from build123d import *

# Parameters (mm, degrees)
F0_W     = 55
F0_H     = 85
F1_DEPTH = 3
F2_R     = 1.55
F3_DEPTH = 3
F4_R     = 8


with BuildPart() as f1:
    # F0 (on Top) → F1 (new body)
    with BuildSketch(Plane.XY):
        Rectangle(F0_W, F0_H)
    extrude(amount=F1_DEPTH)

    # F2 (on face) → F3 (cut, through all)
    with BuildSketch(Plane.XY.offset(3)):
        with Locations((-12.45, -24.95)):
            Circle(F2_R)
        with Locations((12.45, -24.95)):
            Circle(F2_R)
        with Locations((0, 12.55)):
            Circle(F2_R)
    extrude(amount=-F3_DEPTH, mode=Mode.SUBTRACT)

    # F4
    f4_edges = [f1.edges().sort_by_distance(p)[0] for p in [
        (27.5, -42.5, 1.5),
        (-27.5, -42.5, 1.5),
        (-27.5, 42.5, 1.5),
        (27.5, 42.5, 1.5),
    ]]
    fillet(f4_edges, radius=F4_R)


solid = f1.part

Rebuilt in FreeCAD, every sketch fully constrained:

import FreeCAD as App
import Part
import Sketcher
from FreeCAD import Vector
Q = App.Units.Quantity


def edges_at(feature, points):
    """Names of the edges that pass closest to the given points."""
    edges = feature.Shape.Edges
    near = lambda p: min(range(len(edges)), key=lambda i: edges[i].distToShape(Part.Vertex(*p))[0])
    return sorted({f"Edge{near(p) + 1}" for p in points})


def add_polygon(sketch, points):
    """Adds a closed chain of lines whose ends are joined by coincident constraints."""
    first, n = sketch.GeometryCount, len(points)
    for a, b in zip(points, points[1:] + points[:1]):
        sketch.addGeometry(Part.LineSegment(App.Vector(*a, 0), App.Vector(*b, 0)), False)
    for i in range(n):
        sketch.addConstraint(Sketcher.Constraint("Coincident", first + i, 2, first + (i + 1) % n, 1))

doc = App.newDocument("Part")
params = doc.addObject("Spreadsheet::Sheet", "Params")
for row, (alias, value) in enumerate([
    ("sketch1_width", "55 mm"),
    ("sketch1_height", "85 mm"),
    ("pad1_length", "3 mm"),
    ("sketch2_diameter", "3.1 mm"),
    ("fillet_radius", "8 mm"),
], start=1):
    params.set(f"A{row}", alias)
    params.set(f"B{row}", "=" + value)
    params.setAlias(f"B{row}", alias)

body = doc.addObject("PartDesign::Body", "Body")

# Sketch on XY plane
sketch1 = doc.addObject("Sketcher::SketchObject", "Sketch")
body.addObject(sketch1)
sketch1.AttachmentSupport = (doc.XY_Plane, [""])
sketch1.MapMode = "FlatFace"
add_polygon(sketch1, [(-28, 42), (-28, -42), (28, -42), (28, 42)])  # lines 0-3
sketch1.addConstraint([
    Sketcher.Constraint("Vertical", 0),
    Sketcher.Constraint("Horizontal", 1),
    Sketcher.Constraint("Vertical", 2),
    Sketcher.Constraint("Horizontal", 3),
    Sketcher.Constraint("Symmetric", 0, 2, 2, 2, -1, 1),
    Sketcher.Constraint("DistanceX", 1, 1, 1, 2, Q("55 mm")),
    Sketcher.Constraint("DistanceY", 0, 2, 0, 1, Q("85 mm")),
])
sketch1.setExpression("Constraints[9]", "Params.sketch1_width")
sketch1.setExpression("Constraints[10]", "Params.sketch1_height")
pad1 = doc.addObject("PartDesign::Pad", "Pad")
body.addObject(pad1)
pad1.Profile = sketch1
pad1.setExpression("Length", "Params.pad1_length")

# Sketch on XY plane
sketch2 = doc.addObject("Sketcher::SketchObject", "Sketch001")
body.addObject(sketch2)
sketch2.AttachmentSupport = (doc.XY_Plane, [""])
sketch2.MapMode = "FlatFace"
sketch2.AttachmentOffset = App.Placement(Vector(0, 0, 3), App.Rotation())
sketch2.addGeometry([
    Part.Circle(Vector(-12.4, -24.9, 0), Vector(0, 0, 1), 1.6),
    Part.Circle(Vector(12.4, -24.9, 0), Vector(0, 0, 1), 1.6),
    Part.Circle(Vector(0, 12.6, 0), Vector(0, 0, 1), 1.6),
], False)
sketch2.addConstraint([
    Sketcher.Constraint("Equal", 0, 1),
    Sketcher.Constraint("Equal", 1, 2),
    Sketcher.Constraint("Symmetric", 0, 3, 1, 3, -2),
    Sketcher.Constraint("PointOnObject", 2, 3, -2),
    Sketcher.Constraint("Diameter", 0, Q("3.1 mm")),
    Sketcher.Constraint("DistanceX", 0, 3, 1, 3, Q("24.9 mm")),
    Sketcher.Constraint("DistanceY", 0, 3, 2, 3, Q("37.5 mm")),
    Sketcher.Constraint("DistanceY", 0, 3, -1, 1, Q("24.95 mm")),
])
sketch2.setExpression("Constraints[4]", "Params.sketch2_diameter")
pocket1 = doc.addObject("PartDesign::Pocket", "Pocket")
body.addObject(pocket1)
pocket1.Profile = sketch2
pocket1.Type = "ThroughAll"
doc.recompute()

fillet = doc.addObject("PartDesign::Fillet", "Fillet")
body.addObject(fillet)
fillet.Base = (pocket1, edges_at(pocket1, [
    (27.5, -42.5, 1.5),
    (-27.5, -42.5, 1.5),
    (-27.5, 42.5, 1.5),
    (27.5, 42.5, 1.5),
]))
fillet.setExpression("Radius", "Params.fillet_radius")

doc.recompute()
